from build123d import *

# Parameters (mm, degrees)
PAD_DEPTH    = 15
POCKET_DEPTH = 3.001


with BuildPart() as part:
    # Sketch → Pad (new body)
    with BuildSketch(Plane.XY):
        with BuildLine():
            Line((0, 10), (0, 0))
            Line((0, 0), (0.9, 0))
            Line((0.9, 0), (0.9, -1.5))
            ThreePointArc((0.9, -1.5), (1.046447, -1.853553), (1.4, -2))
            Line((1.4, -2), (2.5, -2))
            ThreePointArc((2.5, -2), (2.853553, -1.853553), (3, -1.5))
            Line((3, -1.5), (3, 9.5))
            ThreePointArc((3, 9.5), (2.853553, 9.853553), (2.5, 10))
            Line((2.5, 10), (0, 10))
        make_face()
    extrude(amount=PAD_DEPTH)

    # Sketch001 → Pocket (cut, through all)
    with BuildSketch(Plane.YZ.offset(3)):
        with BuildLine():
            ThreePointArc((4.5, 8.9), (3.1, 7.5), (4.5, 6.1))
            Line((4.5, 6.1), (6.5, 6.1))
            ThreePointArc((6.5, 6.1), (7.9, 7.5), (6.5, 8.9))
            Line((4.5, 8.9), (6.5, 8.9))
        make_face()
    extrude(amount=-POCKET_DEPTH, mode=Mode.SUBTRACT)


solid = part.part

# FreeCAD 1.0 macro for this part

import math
import FreeCAD as App
import Part
import Sketcher

V = App.Vector
Q = App.Units.Quantity

doc = App.newDocument("Part")
body = doc.addObject("PartDesign::Body", "Body")

sketch1 = body.newObject("Sketcher::SketchObject", "Sketch")
sketch1.AttachmentSupport = (doc.getObject("XY_Plane"), [""])
sketch1.MapMode = "FlatFace"
sketch1.addGeometry([
    Part.LineSegment(V(0, 10, 0), V(0, 0, 0)),
    Part.LineSegment(V(0, 0, 0), V(0.9, 0, 0)),
    Part.LineSegment(V(0.9, 0, 0), V(0.9, -1.5, 0)),
    Part.ArcOfCircle(Part.Circle(V(1.400001, -1.499999, 0), V(0, 0, 1), 0.500001), math.radians(-179.999847), math.radians(-90.000153)),
    Part.LineSegment(V(1.4, -2, 0), V(2.5, -2, 0)),
    Part.ArcOfCircle(Part.Circle(V(2.499999, -1.499999, 0), V(0, 0, 1), 0.500001), math.radians(-89.999847), math.radians(-0.000153)),
    Part.LineSegment(V(3, -1.5, 0), V(3, 9.5, 0)),
    Part.ArcOfCircle(Part.Circle(V(2.499999, 9.499999, 0), V(0, 0, 1), 0.500001), math.radians(0.000153), math.radians(89.999847)),
    Part.LineSegment(V(2.5, 10, 0), V(0, 10, 0)),
], False)
sketch1.addConstraint([
    Sketcher.Constraint("Coincident", 0, 2, 1, 1),
    Sketcher.Constraint("Coincident", 1, 2, 2, 1),
    Sketcher.Constraint("Coincident", 2, 2, 3, 1),
    Sketcher.Constraint("Coincident", 3, 2, 4, 1),
    Sketcher.Constraint("Coincident", 4, 2, 5, 1),
    Sketcher.Constraint("Coincident", 5, 2, 6, 1),
    Sketcher.Constraint("Coincident", 6, 2, 7, 1),
    Sketcher.Constraint("Coincident", 7, 2, 8, 1),
    Sketcher.Constraint("Coincident", 8, 2, 0, 1),
    Sketcher.Constraint("Vertical", 0),
    Sketcher.Constraint("Horizontal", 1),
    Sketcher.Constraint("Vertical", 2),
    Sketcher.Constraint("Horizontal", 4),
    Sketcher.Constraint("Vertical", 6),
    Sketcher.Constraint("Horizontal", 8),
    Sketcher.Constraint("Coincident", 0, 2, -1, 1),
    Sketcher.Constraint("Equal", 3, 5),
    Sketcher.Constraint("Equal", 5, 7),
    Sketcher.Constraint("Horizontal", 5, 3, 2, 2),
    Sketcher.Constraint("Horizontal", 2, 2, 5, 2),
    Sketcher.Constraint("Horizontal", 7, 3, 6, 2),
    Sketcher.Constraint("Vertical", 7, 3, 4, 2),
    Sketcher.Constraint("Vertical", 4, 2, 7, 2),
    Sketcher.Constraint("Radius", 3, Q("0.500001 mm")),
    Sketcher.Constraint("DistanceY", 0, 2, 0, 1, Q("10 mm")),
    Sketcher.Constraint("DistanceY", 6, 1, 6, 2, Q("11 mm")),
    Sketcher.Constraint("DistanceX", 1, 1, 1, 2, Q("0.9 mm")),
    Sketcher.Constraint("DistanceX", 4, 1, 4, 2, Q("1.1 mm")),
    Sketcher.Constraint("DistanceX", 8, 2, 8, 1, Q("2.5 mm")),
])
pad1 = body.newObject("PartDesign::Pad", "Pad")
pad1.Profile = sketch1
pad1.Length = 15

sketch2 = body.newObject("Sketcher::SketchObject", "Sketch001")
sketch2.AttachmentSupport = (doc.getObject("YZ_Plane"), [""])
sketch2.MapMode = "FlatFace"
sketch2.AttachmentOffset = App.Placement(V(0, 0, 3), App.Rotation())
sketch2.addGeometry([
    Part.ArcOfCircle(Part.Circle(V(4.5, 7.5, 0), V(0, 0, 1), 1.4), math.radians(90), math.radians(270)),
    Part.LineSegment(V(4.5, 6.1, 0), V(6.5, 6.1, 0)),
    Part.ArcOfCircle(Part.Circle(V(6.5, 7.5, 0), V(0, 0, 1), 1.4), math.radians(-90), math.radians(90)),
    Part.LineSegment(V(6.5, 8.9, 0), V(4.5, 8.9, 0)),
], False)
sketch2.addConstraint([
    Sketcher.Constraint("Tangent", 0, 2, 1, 1),
    Sketcher.Constraint("Tangent", 1, 2, 2, 1),
    Sketcher.Constraint("Tangent", 2, 2, 3, 1),
    Sketcher.Constraint("Tangent", 3, 2, 0, 1),
    Sketcher.Constraint("Horizontal", 1),
    Sketcher.Constraint("Horizontal", 3),
    Sketcher.Constraint("Radius", 0, Q("1.4 mm")),
    Sketcher.Constraint("DistanceX", 1, 1, 1, 2, Q("2 mm")),
    Sketcher.Constraint("DistanceX", -1, 1, 0, 3, Q("4.5 mm")),
    Sketcher.Constraint("DistanceY", -1, 1, 0, 3, Q("7.5 mm")),
])
pocket1 = body.newObject("PartDesign::Pocket", "Pocket")
pocket1.Profile = sketch2
pocket1.Type = "ThroughAll"

doc.recompute()
